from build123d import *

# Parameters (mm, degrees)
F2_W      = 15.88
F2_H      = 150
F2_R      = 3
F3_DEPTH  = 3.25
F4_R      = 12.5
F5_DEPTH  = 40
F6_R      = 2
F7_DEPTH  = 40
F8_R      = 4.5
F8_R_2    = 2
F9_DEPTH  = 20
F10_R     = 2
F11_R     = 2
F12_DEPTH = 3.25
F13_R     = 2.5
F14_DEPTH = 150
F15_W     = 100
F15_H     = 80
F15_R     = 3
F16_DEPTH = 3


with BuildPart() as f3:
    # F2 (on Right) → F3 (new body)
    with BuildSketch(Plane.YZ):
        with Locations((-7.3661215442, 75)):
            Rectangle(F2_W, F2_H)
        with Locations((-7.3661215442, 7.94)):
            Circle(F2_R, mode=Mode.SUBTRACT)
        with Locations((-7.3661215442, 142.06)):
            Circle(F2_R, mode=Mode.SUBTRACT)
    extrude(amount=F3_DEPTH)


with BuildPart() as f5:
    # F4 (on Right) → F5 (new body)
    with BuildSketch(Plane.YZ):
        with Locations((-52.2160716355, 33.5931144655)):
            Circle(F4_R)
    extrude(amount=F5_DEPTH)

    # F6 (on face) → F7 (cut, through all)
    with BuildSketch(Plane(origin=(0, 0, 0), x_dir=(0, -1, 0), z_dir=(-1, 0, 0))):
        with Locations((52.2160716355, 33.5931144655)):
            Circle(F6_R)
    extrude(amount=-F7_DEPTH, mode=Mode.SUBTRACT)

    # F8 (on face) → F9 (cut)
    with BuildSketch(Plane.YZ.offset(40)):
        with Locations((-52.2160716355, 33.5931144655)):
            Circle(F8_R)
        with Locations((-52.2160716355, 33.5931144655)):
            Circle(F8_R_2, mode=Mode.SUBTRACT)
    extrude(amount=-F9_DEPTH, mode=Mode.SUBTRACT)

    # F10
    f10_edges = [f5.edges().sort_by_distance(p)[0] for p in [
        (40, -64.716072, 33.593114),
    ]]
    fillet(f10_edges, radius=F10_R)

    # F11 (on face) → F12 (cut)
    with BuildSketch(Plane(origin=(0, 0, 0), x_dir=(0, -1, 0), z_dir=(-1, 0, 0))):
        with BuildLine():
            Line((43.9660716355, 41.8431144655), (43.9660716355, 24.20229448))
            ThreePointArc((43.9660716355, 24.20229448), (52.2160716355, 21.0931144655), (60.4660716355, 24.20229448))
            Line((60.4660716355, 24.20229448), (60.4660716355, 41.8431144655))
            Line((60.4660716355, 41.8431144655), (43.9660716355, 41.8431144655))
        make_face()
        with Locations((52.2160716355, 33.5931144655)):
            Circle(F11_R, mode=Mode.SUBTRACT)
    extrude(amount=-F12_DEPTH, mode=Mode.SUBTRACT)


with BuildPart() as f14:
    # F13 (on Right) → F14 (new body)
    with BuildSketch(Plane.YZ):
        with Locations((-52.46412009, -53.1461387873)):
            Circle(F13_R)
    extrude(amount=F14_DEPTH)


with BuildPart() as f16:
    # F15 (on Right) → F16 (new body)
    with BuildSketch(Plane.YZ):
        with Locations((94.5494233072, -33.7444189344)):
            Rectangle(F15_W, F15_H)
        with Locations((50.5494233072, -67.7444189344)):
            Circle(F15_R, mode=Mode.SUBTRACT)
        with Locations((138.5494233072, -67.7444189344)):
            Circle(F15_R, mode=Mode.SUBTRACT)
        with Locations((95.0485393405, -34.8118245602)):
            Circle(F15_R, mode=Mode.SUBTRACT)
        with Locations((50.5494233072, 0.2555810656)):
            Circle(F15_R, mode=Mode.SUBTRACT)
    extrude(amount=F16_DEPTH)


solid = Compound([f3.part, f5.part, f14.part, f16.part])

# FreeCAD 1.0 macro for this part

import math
import FreeCAD as App
import Part
import Sketcher
from FreeCAD import Vector
Q = App.Units.Quantity


def edges_at(feature, points):
    """Names of the edges that pass closest to the given points."""
    edges = feature.Shape.Edges
    near = lambda p: min(range(len(edges)), key=lambda i: edges[i].distToShape(Part.Vertex(*p))[0])
    return sorted({f"Edge{near(p) + 1}" for p in points})


def add_polygon(sketch, points):
    """Adds a closed chain of lines whose ends are joined by coincident constraints."""
    first, n = sketch.GeometryCount, len(points)
    for a, b in zip(points, points[1:] + points[:1]):
        sketch.addGeometry(Part.LineSegment(App.Vector(*a, 0), App.Vector(*b, 0)), False)
    for i in range(n):
        sketch.addConstraint(Sketcher.Constraint("Coincident", first + i, 2, first + (i + 1) % n, 1))

doc = App.newDocument("Part")
body = doc.addObject("PartDesign::Body", "Body")

# Sketch on YZ plane
sketch1 = doc.addObject("Sketcher::SketchObject", "Sketch")
body.addObject(sketch1)
sketch1.AttachmentSupport = (doc.YZ_Plane, [""])
sketch1.MapMode = "FlatFace"
add_polygon(sketch1, [(-15.306122, 150), (-15.306122, 0), (0.573878, 0), (0.573878, 150)])  # lines 0-3
sketch1.addGeometry(Part.Circle(Vector(-7.366122, 7.94, 0), Vector(0, 0, 1), 3), False)  # 4
sketch1.addGeometry(Part.Circle(Vector(-7.366122, 142.06, 0), Vector(0, 0, 1), 3), False)  # 5
sketch1.addConstraint(Sketcher.Constraint("Vertical", 0))
sketch1.addConstraint(Sketcher.Constraint("Horizontal", 1))
sketch1.addConstraint(Sketcher.Constraint("Vertical", 2))
sketch1.addConstraint(Sketcher.Constraint("Horizontal", 3))
sketch1.addConstraint(Sketcher.Constraint("Equal", 4, 5))
sketch1.addConstraint(Sketcher.Constraint("PointOnObject", 0, 2, -1))
sketch1.addConstraint(Sketcher.Constraint("Vertical", 4, 3, 5, 3))
sketch1.addConstraint(Sketcher.Constraint("Diameter", 4, Q("6 mm")))
sketch1.addConstraint(Sketcher.Constraint("DistanceY", 0, 2, 0, 1, Q("150 mm")))
sketch1.addConstraint(Sketcher.Constraint("DistanceX", 1, 1, 1, 2, Q("15.88 mm")))
sketch1.addConstraint(Sketcher.Constraint("DistanceY", -1, 1, 4, 3, Q("7.94 mm")))
sketch1.addConstraint(Sketcher.Constraint("DistanceY", -1, 1, 5, 3, Q("142.06 mm")))
sketch1.addConstraint(Sketcher.Constraint("DistanceX", 0, 2, 4, 3, Q("7.94 mm")))
sketch1.addConstraint(Sketcher.Constraint("DistanceX", 4, 3, -1, 1, Q("7.366122 mm")))
pad1 = doc.addObject("PartDesign::Pad", "Pad")
body.addObject(pad1)
pad1.Profile = sketch1
pad1.Length = 3.25
body2 = doc.addObject("PartDesign::Body", "Body001")

# Sketch on YZ plane
sketch2 = doc.addObject("Sketcher::SketchObject", "Sketch001")
body2.addObject(sketch2)
sketch2.AttachmentSupport = (doc.getObject("YZ_Plane001"), [""])
sketch2.MapMode = "FlatFace"
sketch2.addGeometry(Part.Circle(Vector(-52.216072, 33.593114, 0), Vector(0, 0, 1), 12.5), False)
sketch2.addConstraint(Sketcher.Constraint("Diameter", 0, Q("25 mm")))
sketch2.addConstraint(Sketcher.Constraint("DistanceX", 0, 3, -1, 1, Q("52.216072 mm")))
sketch2.addConstraint(Sketcher.Constraint("DistanceY", -1, 1, 0, 3, Q("33.593114 mm")))
pad2 = doc.addObject("PartDesign::Pad", "Pad001")
body2.addObject(pad2)
pad2.Profile = sketch2
pad2.Length = 40

# Sketch on YZ plane
sketch3 = doc.addObject("Sketcher::SketchObject", "Sketch002")
body2.addObject(sketch3)
sketch3.AttachmentSupport = (doc.getObject("YZ_Plane001"), [""])
sketch3.MapMode = "FlatFace"
sketch3.addGeometry(Part.Circle(Vector(-52.216072, 33.593114, 0), Vector(0, 0, 1), 2), False)
sketch3.addConstraint(Sketcher.Constraint("Diameter", 0, Q("4 mm")))
sketch3.addConstraint(Sketcher.Constraint("DistanceX", 0, 3, -1, 1, Q("52.216072 mm")))
sketch3.addConstraint(Sketcher.Constraint("DistanceY", -1, 1, 0, 3, Q("33.593114 mm")))
pocket1 = doc.addObject("PartDesign::Pocket", "Pocket")
body2.addObject(pocket1)
pocket1.Profile = sketch3
pocket1.Type = "ThroughAll"
pocket1.Reversed = True

# Sketch on YZ plane
sketch4 = doc.addObject("Sketcher::SketchObject", "Sketch003")
body2.addObject(sketch4)
sketch4.AttachmentSupport = (doc.getObject("YZ_Plane001"), [""])
sketch4.MapMode = "FlatFace"
sketch4.AttachmentOffset = App.Placement(Vector(0, 0, 40), App.Rotation())
sketch4.addGeometry(Part.Circle(Vector(-52.216072, 33.593114, 0), Vector(0, 0, 1), 4.5), False)
sketch4.addGeometry(Part.Circle(Vector(-52.216072, 33.593114, 0), Vector(0, 0, 1), 2), False)
sketch4.addConstraint(Sketcher.Constraint("Coincident", 1, 3, 0, 3))
sketch4.addConstraint(Sketcher.Constraint("Diameter", 0, Q("9 mm")))
sketch4.addConstraint(Sketcher.Constraint("Diameter", 1, Q("4 mm")))
sketch4.addConstraint(Sketcher.Constraint("DistanceX", 0, 3, -1, 1, Q("52.216072 mm")))
sketch4.addConstraint(Sketcher.Constraint("DistanceY", -1, 1, 0, 3, Q("33.593114 mm")))
pocket2 = doc.addObject("PartDesign::Pocket", "Pocket001")
body2.addObject(pocket2)
pocket2.Profile = sketch4
pocket2.Length = 20
doc.recompute()

fillet = doc.addObject("PartDesign::Fillet", "Fillet")
body2.addObject(fillet)
fillet.Base = (pocket2, edges_at(pocket2, [(40, -64.716, 33.593)]))
fillet.Radius = 2

# Sketch on YZ plane
sketch5 = doc.addObject("Sketcher::SketchObject", "Sketch004")
body2.addObject(sketch5)
sketch5.AttachmentSupport = (doc.getObject("YZ_Plane001"), [""])
sketch5.MapMode = "FlatFace"
sketch5.addGeometry(Part.LineSegment(Vector(-43.966072, 41.843114, 0), Vector(-43.966072, 24.202294, 0)), False)
sketch5.addGeometry(Part.ArcOfCircle(Part.Circle(Vector(-52.216072, 33.593114, 0), Vector(0, 0, 1), 12.5), math.radians(-131.299873), math.radians(-48.700127)), False)
sketch5.addGeometry(Part.LineSegment(Vector(-60.466072, 24.202294, 0), Vector(-60.466072, 41.843114, 0)), False)
sketch5.addGeometry(Part.LineSegment(Vector(-60.466072, 41.843114, 0), Vector(-43.966072, 41.843114, 0)), False)
sketch5.addGeometry(Part.Circle(Vector(-52.216072, 33.593114, 0), Vector(0, 0, 1), 2), False)
sketch5.addConstraint(Sketcher.Constraint("Coincident", 0, 2, 1, 2))
sketch5.addConstraint(Sketcher.Constraint("Coincident", 1, 1, 2, 1))
sketch5.addConstraint(Sketcher.Constraint("Coincident", 2, 2, 3, 1))
sketch5.addConstraint(Sketcher.Constraint("Coincident", 3, 2, 0, 1))
sketch5.addConstraint(Sketcher.Constraint("Vertical", 0))
sketch5.addConstraint(Sketcher.Constraint("Vertical", 2))
sketch5.addConstraint(Sketcher.Constraint("Horizontal", 3))
sketch5.addConstraint(Sketcher.Constraint("Coincident", 4, 3, 1, 3))
sketch5.addConstraint(Sketcher.Constraint("Horizontal", 0, 2, 1, 1))
sketch5.addConstraint(Sketcher.Constraint("Diameter", 4, Q("4 mm")))
sketch5.addConstraint(Sketcher.Constraint("Radius", 1, Q("12.5 mm")))
sketch5.addConstraint(Sketcher.Constraint("DistanceX", 3, 1, 3, 2, Q("16.5 mm")))
sketch5.addConstraint(Sketcher.Constraint("DistanceY", 1, 3, 2, 2, Q("8.25 mm")))
sketch5.addConstraint(Sketcher.Constraint("DistanceX", 1, 3, -1, 1, Q("52.216072 mm")))
sketch5.addConstraint(Sketcher.Constraint("DistanceY", -1, 1, 1, 3, Q("33.593114 mm")))
pocket3 = doc.addObject("PartDesign::Pocket", "Pocket002")
body2.addObject(pocket3)
pocket3.Profile = sketch5
pocket3.Length = 3.25
pocket3.Reversed = True
body3 = doc.addObject("PartDesign::Body", "Body002")

# Sketch on YZ plane
sketch6 = doc.addObject("Sketcher::SketchObject", "Sketch005")
body3.addObject(sketch6)
sketch6.AttachmentSupport = (doc.getObject("YZ_Plane002"), [""])
sketch6.MapMode = "FlatFace"
sketch6.addGeometry(Part.Circle(Vector(-52.46412, -53.146139, 0), Vector(0, 0, 1), 2.5), False)
sketch6.addConstraint(Sketcher.Constraint("Diameter", 0, Q("5 mm")))
sketch6.addConstraint(Sketcher.Constraint("DistanceX", 0, 3, -1, 1, Q("52.46412 mm")))
sketch6.addConstraint(Sketcher.Constraint("DistanceY", 0, 3, -1, 1, Q("53.146139 mm")))
pad3 = doc.addObject("PartDesign::Pad", "Pad002")
body3.addObject(pad3)
pad3.Profile = sketch6
pad3.Length = 150
body4 = doc.addObject("PartDesign::Body", "Body003")

# Sketch on YZ plane
sketch7 = doc.addObject("Sketcher::SketchObject", "Sketch006")
body4.addObject(sketch7)
sketch7.AttachmentSupport = (doc.getObject("YZ_Plane003"), [""])
sketch7.MapMode = "FlatFace"
add_polygon(sketch7, [(44.549423, 6.255581), (44.549423, -73.744419), (144.549423, -73.744419), (144.549423, 6.255581)])  # lines 0-3
sketch7.addGeometry(Part.Circle(Vector(50.549423, -67.744419, 0), Vector(0, 0, 1), 3), False)  # 4
sketch7.addGeometry(Part.Circle(Vector(138.549423, -67.744419, 0), Vector(0, 0, 1), 3), False)  # 5
sketch7.addGeometry(Part.Circle(Vector(95.048539, -34.811825, 0), Vector(0, 0, 1), 3), False)  # 6
sketch7.addGeometry(Part.Circle(Vector(50.549423, 0.255581, 0), Vector(0, 0, 1), 3), False)  # 7
sketch7.addConstraint(Sketcher.Constraint("Vertical", 0))
sketch7.addConstraint(Sketcher.Constraint("Horizontal", 1))
sketch7.addConstraint(Sketcher.Constraint("Vertical", 2))
sketch7.addConstraint(Sketcher.Constraint("Horizontal", 3))
sketch7.addConstraint(Sketcher.Constraint("Equal", 4, 5))
sketch7.addConstraint(Sketcher.Constraint("Equal", 5, 6))
sketch7.addConstraint(Sketcher.Constraint("Equal", 6, 7))
sketch7.addConstraint(Sketcher.Constraint("Horizontal", 4, 3, 5, 3))
sketch7.addConstraint(Sketcher.Constraint("Vertical", 4, 3, 7, 3))
sketch7.addConstraint(Sketcher.Constraint("Diameter", 4, Q("6 mm")))
sketch7.addConstraint(Sketcher.Constraint("DistanceX", 1, 1, 1, 2, Q("100 mm")))
sketch7.addConstraint(Sketcher.Constraint("DistanceY", 0, 2, 0, 1, Q("80 mm")))
sketch7.addConstraint(Sketcher.Constraint("DistanceX", 4, 3, 5, 3, Q("88 mm")))
sketch7.addConstraint(Sketcher.Constraint("DistanceY", 4, 3, 7, 3, Q("68 mm")))
sketch7.addConstraint(Sketcher.Constraint("DistanceX", 0, 2, 4, 3, Q("6 mm")))
sketch7.addConstraint(Sketcher.Constraint("DistanceY", 0, 2, 4, 3, Q("6 mm")))
sketch7.addConstraint(Sketcher.Constraint("DistanceY", 4, 3, -1, 1, Q("67.744419 mm")))
sketch7.addConstraint(Sketcher.Constraint("DistanceX", -1, 1, 6, 3, Q("95.048539 mm")))
sketch7.addConstraint(Sketcher.Constraint("DistanceX", -1, 1, 4, 3, Q("50.549423 mm")))
sketch7.addConstraint(Sketcher.Constraint("DistanceY", 6, 3, -1, 1, Q("34.811825 mm")))
pad4 = doc.addObject("PartDesign::Pad", "Pad003")
body4.addObject(pad4)
pad4.Profile = sketch7
pad4.Length = 3

doc.recompute()
